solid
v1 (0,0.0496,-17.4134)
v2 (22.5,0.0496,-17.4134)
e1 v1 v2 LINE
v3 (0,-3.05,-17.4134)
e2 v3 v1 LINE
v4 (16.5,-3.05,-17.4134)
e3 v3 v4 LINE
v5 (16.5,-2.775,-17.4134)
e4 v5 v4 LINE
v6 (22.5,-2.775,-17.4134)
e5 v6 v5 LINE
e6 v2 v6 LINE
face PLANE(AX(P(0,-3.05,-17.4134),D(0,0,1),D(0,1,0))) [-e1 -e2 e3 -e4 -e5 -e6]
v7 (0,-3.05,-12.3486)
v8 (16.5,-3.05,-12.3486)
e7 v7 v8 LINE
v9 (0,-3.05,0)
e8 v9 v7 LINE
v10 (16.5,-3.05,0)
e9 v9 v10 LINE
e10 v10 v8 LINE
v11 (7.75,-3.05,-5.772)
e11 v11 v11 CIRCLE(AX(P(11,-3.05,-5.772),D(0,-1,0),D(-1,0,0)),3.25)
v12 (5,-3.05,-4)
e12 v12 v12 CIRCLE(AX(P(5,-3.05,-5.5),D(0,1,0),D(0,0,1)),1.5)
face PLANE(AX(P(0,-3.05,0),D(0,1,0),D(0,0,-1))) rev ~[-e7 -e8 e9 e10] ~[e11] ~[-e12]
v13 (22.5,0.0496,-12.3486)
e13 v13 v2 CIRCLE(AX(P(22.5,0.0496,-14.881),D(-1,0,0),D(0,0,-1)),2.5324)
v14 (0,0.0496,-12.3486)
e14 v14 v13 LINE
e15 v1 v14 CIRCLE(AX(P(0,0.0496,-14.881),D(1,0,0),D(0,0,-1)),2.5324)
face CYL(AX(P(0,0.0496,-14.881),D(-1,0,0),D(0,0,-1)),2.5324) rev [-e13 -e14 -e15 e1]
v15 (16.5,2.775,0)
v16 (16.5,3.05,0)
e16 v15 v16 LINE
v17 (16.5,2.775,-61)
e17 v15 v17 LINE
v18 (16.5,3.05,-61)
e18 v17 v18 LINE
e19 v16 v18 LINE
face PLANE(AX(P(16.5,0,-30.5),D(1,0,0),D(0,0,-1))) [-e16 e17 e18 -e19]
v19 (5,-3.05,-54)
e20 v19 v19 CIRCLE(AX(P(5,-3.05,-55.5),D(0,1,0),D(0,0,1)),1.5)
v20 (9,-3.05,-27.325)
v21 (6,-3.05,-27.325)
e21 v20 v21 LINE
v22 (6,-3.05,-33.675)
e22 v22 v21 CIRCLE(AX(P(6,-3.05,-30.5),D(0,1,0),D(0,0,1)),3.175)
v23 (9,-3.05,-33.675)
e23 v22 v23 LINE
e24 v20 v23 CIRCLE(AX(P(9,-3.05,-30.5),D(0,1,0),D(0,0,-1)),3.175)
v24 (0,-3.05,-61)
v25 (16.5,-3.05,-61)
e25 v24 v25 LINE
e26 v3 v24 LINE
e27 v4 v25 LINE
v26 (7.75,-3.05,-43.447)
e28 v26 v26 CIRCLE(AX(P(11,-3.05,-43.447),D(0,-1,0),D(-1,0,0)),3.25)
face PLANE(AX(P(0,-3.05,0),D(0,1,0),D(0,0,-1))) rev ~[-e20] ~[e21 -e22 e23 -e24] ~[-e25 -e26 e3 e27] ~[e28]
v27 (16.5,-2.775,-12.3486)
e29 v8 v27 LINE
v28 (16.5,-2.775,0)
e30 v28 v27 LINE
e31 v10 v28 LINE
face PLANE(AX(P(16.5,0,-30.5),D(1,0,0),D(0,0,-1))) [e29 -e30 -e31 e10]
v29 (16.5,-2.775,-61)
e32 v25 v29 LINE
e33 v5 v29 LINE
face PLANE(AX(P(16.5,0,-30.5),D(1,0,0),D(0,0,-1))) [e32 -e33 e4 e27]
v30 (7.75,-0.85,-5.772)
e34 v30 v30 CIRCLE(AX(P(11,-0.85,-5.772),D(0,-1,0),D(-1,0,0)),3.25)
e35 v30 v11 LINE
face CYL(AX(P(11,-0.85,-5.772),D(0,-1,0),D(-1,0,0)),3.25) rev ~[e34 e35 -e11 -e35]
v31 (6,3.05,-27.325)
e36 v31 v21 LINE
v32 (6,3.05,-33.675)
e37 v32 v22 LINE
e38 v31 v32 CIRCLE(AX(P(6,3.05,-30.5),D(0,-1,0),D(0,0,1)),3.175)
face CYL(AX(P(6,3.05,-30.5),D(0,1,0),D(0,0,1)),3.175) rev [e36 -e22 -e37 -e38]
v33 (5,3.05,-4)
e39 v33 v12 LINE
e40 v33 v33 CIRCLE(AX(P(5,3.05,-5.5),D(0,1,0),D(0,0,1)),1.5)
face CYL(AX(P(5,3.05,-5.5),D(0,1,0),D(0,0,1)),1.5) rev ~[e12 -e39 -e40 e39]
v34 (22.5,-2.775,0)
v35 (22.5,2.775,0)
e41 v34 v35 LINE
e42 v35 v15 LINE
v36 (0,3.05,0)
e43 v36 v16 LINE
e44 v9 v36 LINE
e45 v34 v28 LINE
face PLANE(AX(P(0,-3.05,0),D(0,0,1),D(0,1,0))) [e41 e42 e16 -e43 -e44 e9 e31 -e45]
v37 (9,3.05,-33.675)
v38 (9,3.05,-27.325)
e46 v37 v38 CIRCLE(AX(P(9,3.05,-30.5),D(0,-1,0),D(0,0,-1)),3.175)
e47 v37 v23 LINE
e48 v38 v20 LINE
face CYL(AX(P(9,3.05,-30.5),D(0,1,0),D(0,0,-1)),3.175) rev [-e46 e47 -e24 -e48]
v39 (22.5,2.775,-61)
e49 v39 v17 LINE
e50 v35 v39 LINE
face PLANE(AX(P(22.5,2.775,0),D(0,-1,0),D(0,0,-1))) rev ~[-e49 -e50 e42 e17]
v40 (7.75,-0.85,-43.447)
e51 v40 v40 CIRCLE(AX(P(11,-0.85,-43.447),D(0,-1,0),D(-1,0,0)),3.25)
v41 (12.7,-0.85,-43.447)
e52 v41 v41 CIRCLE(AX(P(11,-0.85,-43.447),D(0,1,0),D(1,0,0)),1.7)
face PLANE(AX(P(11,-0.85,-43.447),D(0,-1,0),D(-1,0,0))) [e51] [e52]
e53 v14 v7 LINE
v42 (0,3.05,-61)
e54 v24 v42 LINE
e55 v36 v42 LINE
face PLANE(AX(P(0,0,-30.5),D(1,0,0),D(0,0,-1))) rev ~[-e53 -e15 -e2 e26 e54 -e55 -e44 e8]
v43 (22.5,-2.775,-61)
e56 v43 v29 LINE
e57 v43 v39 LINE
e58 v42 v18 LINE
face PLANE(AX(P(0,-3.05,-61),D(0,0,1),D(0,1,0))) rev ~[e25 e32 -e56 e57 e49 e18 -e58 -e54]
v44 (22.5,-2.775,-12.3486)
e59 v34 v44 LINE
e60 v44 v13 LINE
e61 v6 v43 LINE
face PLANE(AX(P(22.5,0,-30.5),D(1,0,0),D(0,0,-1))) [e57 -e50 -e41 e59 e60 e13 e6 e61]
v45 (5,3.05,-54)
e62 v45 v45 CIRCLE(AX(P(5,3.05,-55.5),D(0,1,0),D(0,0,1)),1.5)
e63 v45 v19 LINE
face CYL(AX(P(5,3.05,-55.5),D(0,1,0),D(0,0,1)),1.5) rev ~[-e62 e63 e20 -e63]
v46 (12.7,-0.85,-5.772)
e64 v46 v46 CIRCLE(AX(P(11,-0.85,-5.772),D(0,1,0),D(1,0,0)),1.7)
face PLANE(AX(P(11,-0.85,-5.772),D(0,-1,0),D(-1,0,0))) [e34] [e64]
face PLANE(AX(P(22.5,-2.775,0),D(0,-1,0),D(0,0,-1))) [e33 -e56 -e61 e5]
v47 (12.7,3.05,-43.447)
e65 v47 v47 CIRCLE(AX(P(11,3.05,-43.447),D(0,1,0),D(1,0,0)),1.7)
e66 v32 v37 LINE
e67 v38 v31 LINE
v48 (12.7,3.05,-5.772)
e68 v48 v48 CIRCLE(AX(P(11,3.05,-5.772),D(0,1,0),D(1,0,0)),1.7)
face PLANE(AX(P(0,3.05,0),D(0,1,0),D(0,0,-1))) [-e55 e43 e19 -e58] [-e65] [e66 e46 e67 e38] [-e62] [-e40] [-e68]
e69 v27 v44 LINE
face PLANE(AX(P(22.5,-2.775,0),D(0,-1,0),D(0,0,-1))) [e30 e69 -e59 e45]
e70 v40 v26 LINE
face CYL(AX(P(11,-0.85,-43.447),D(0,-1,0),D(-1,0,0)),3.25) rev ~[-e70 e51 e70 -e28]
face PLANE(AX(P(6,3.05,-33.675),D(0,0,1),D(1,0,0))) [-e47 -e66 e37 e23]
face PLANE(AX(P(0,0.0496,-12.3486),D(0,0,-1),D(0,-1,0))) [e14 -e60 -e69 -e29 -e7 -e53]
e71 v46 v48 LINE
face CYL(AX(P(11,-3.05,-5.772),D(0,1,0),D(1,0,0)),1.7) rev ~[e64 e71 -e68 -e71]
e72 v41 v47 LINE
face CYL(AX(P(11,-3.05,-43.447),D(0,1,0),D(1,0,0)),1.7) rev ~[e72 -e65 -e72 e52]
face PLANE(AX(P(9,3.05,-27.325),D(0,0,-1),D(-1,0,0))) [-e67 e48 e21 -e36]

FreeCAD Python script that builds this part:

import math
import FreeCAD as App
import Part
import Sketcher
from FreeCAD import Vector


def add_polygon(sketch, points):
    """Adds a closed chain of lines whose ends are joined by coincident constraints."""
    first, n = sketch.GeometryCount, len(points)
    for a, b in zip(points, points[1:] + points[:1]):
        sketch.addGeometry(Part.LineSegment(App.Vector(*a, 0), App.Vector(*b, 0)), False)
    for i in range(n):
        sketch.addConstraint(Sketcher.Constraint("Coincident", first + i, 2, first + (i + 1) % n, 1))

doc = App.newDocument("Part")
body = doc.addObject("PartDesign::Body", "Body")

# Sketch on YZ plane
sketch1 = body.newObject("Sketcher::SketchObject", "Sketch")
sketch1.AttachmentSupport = (doc.getObject("YZ_Plane"), [""])
sketch1.MapMode = "FlatFace"
add_polygon(sketch1, [(3.05, 0), (-3.05, 0), (-3.05, -61), (3.05, -61)])  # lines 0-3
sketch1.addConstraint([
    Sketcher.Constraint("Horizontal", 0),
    Sketcher.Constraint("Vertical", 1),
    Sketcher.Constraint("Horizontal", 2),
    Sketcher.Constraint("Vertical", 3),
    Sketcher.Constraint("Symmetric", 0, 2, 3, 2, -1, 1),
    Sketcher.Constraint("DistanceY", 1, 2, 1, 1, 61.0),
    Sketcher.Constraint("DistanceX", 0, 2, 0, 1, 6.1),
])
pad1 = body.newObject("PartDesign::Pad", "Pad")
pad1.Profile = sketch1
pad1.Length = 22.5

# Sketch on YZ plane
sketch2 = body.newObject("Sketcher::SketchObject", "Sketch001")
sketch2.AttachmentSupport = (doc.getObject("YZ_Plane"), [""])
sketch2.MapMode = "FlatFace"
sketch2.AttachmentOffset = App.Placement(Vector(0, 0, 22.5), App.Rotation())
add_polygon(sketch2, [(10.58, 7.53), (-10.58, 7.53), (-10.58, -68.53), (10.58, -68.53)])  # lines 0-3
add_polygon(sketch2, [(-2.775, -61), (-2.775, 0), (2.775, 0), (2.775, -61)])  # lines 4-7
sketch2.addConstraint([
    Sketcher.Constraint("Horizontal", 0),
    Sketcher.Constraint("Vertical", 1),
    Sketcher.Constraint("Horizontal", 2),
    Sketcher.Constraint("Vertical", 3),
    Sketcher.Constraint("Vertical", 4),
    Sketcher.Constraint("Horizontal", 5),
    Sketcher.Constraint("Vertical", 6),
    Sketcher.Constraint("Horizontal", 7),
    Sketcher.Constraint("Symmetric", 4, 2, 5, 2, -1, 1),
    Sketcher.Constraint("DistanceY", 4, 1, 4, 2, 61.0),
    Sketcher.Constraint("DistanceX", 0, 2, 0, 1, 21.16),
    Sketcher.Constraint("DistanceX", 5, 1, 5, 2, 5.55),
    Sketcher.Constraint("DistanceY", 1, 2, 1, 1, 76.06),
    Sketcher.Constraint("DistanceX", 0, 2, -1, 1, 10.58),
    Sketcher.Constraint("DistanceY", -1, 1, 0, 2, 7.53),
])
pocket1 = body.newObject("PartDesign::Pocket", "Pocket")
pocket1.Profile = sketch2
pocket1.Length = 6

# Sketch on YZ plane
sketch3 = body.newObject("Sketcher::SketchObject", "Sketch002")
sketch3.AttachmentSupport = (doc.getObject("YZ_Plane"), [""])
sketch3.MapMode = "FlatFace"
sketch3.addGeometry([
    Part.LineSegment(Vector(-3.05, -12.3486, 0), Vector(0.0496, -12.3486, 0)),
    Part.ArcOfCircle(Part.Circle(Vector(0.0496, -14.881, 0), Vector(0, 0, 1), 2.5324), math.radians(-90), math.radians(90)),
    Part.LineSegment(Vector(0.0496, -17.4134, 0), Vector(-3.05, -17.4134, 0)),
    Part.LineSegment(Vector(-3.05, -17.4134, 0), Vector(-3.05, -12.3486, 0)),
], False)
sketch3.addConstraint([
    Sketcher.Constraint("Tangent", 0, 2, 1, 2),
    Sketcher.Constraint("Tangent", 1, 1, 2, 1),
    Sketcher.Constraint("Coincident", 2, 2, 3, 1),
    Sketcher.Constraint("Coincident", 3, 2, 0, 1),
    Sketcher.Constraint("Horizontal", 0),
    Sketcher.Constraint("Horizontal", 2),
    Sketcher.Constraint("Vertical", 3),
    Sketcher.Constraint("Radius", 1, 2.5324),
    Sketcher.Constraint("DistanceX", 2, 2, -1, 1, 3.05),
    Sketcher.Constraint("DistanceX", 0, 1, 0, 2, 3.0996),
    Sketcher.Constraint("DistanceY", 1, 3, -1, 1, 14.881),
])
pocket2 = body.newObject("PartDesign::Pocket", "Pocket001")
pocket2.Profile = sketch3
pocket2.Type = "ThroughAll"
pocket2.Reversed = True

# Sketch on XZ plane
sketch4 = body.newObject("Sketcher::SketchObject", "Sketch003")
sketch4.AttachmentSupport = (doc.getObject("XZ_Plane"), [""])
sketch4.MapMode = "FlatFace"
sketch4.AttachmentOffset = App.Placement(Vector(0, 0, -3.05), App.Rotation())
sketch4.addGeometry([
    Part.LineSegment(Vector(6, -27.325, 0), Vector(9, -27.325, 0)),
    Part.ArcOfCircle(Part.Circle(Vector(9, -30.5, 0), Vector(0, 0, 1), 3.175), math.radians(-90), math.radians(90)),
    Part.LineSegment(Vector(9, -33.675, 0), Vector(6, -33.675, 0)),
    Part.ArcOfCircle(Part.Circle(Vector(6, -30.5, 0), Vector(0, 0, 1), 3.175), math.radians(90), math.radians(270)),
], False)
sketch4.addConstraint([
    Sketcher.Constraint("Tangent", 0, 2, 1, 2),
    Sketcher.Constraint("Tangent", 1, 1, 2, 1),
    Sketcher.Constraint("Tangent", 2, 2, 3, 2),
    Sketcher.Constraint("Tangent", 3, 1, 0, 1),
    Sketcher.Constraint("Horizontal", 0),
    Sketcher.Constraint("Horizontal", 2),
    Sketcher.Constraint("DistanceX", 0, 1, 0, 2, 3.0),
    Sketcher.Constraint("DistanceX", -1, 1, 1, 3, 9.0),
    Sketcher.Constraint("Radius", 1, 3.175),
    Sketcher.Constraint("DistanceY", 1, 3, -1, 1, 30.5),
])
pocket3 = body.newObject("PartDesign::Pocket", "Pocket002")
pocket3.Profile = sketch4
pocket3.Type = "ThroughAll"
pocket3.Reversed = True

# Sketch on XZ plane
sketch5 = body.newObject("Sketcher::SketchObject", "Sketch004")
sketch5.AttachmentSupport = (doc.getObject("XZ_Plane"), [""])
sketch5.MapMode = "FlatFace"
sketch5.AttachmentOffset = App.Placement(Vector(0, 0, -3.05), App.Rotation())
sketch5.addGeometry([
    Part.Circle(Vector(5, -55.5, 0), Vector(0, 0, 1), 1.5),
    Part.Circle(Vector(5, -5.5, 0), Vector(0, 0, 1), 1.5),
], False)
sketch5.addConstraint([
    Sketcher.Constraint("Equal", 0, 1),
    Sketcher.Constraint("Vertical", 0, 3, 1, 3),
    Sketcher.Constraint("Diameter", 0, 3.0),
    Sketcher.Constraint("DistanceX", -1, 1, 0, 3, 5.0),
    Sketcher.Constraint("DistanceY", 0, 3, 1, 3, 50.0),
    Sketcher.Constraint("DistanceY", 0, 3, -1, 1, 55.5),
])
pocket4 = body.newObject("PartDesign::Pocket", "Pocket003")
pocket4.Profile = sketch5
pocket4.Type = "ThroughAll"
pocket4.Reversed = True

# Sketch on XZ plane
sketch6 = body.newObject("Sketcher::SketchObject", "Sketch005")
sketch6.AttachmentSupport = (doc.getObject("XZ_Plane"), [""])
sketch6.MapMode = "FlatFace"
sketch6.AttachmentOffset = App.Placement(Vector(0, 0, 3.05), App.Rotation())
sketch6.addGeometry([
    Part.Circle(Vector(11, -5.772, 0), Vector(0, 0, 1), 1.7),
    Part.Circle(Vector(11, -43.447, 0), Vector(0, 0, 1), 1.7),
], False)
sketch6.addConstraint([
    Sketcher.Constraint("Equal", 0, 1),
    Sketcher.Constraint("Vertical", 0, 3, 1, 3),
    Sketcher.Constraint("Diameter", 0, 3.4),
    Sketcher.Constraint("DistanceX", -1, 1, 0, 3, 11.0),
    Sketcher.Constraint("DistanceY", 0, 3, -1, 1, 5.772),
    Sketcher.Constraint("DistanceY", 1, 3, -1, 1, 43.447),
])
doc.recompute()
hole = body.newObject("PartDesign::Hole", "Hole")
hole.Profile = sketch6
hole.ThreadType = "None"
hole.Diameter = 3.4
hole.DepthType = "ThroughAll"
hole.HoleCutType = "Counterbore"
hole.HoleCutDiameter = 6.5
hole.HoleCutDepth = 2.2

doc.recompute()
